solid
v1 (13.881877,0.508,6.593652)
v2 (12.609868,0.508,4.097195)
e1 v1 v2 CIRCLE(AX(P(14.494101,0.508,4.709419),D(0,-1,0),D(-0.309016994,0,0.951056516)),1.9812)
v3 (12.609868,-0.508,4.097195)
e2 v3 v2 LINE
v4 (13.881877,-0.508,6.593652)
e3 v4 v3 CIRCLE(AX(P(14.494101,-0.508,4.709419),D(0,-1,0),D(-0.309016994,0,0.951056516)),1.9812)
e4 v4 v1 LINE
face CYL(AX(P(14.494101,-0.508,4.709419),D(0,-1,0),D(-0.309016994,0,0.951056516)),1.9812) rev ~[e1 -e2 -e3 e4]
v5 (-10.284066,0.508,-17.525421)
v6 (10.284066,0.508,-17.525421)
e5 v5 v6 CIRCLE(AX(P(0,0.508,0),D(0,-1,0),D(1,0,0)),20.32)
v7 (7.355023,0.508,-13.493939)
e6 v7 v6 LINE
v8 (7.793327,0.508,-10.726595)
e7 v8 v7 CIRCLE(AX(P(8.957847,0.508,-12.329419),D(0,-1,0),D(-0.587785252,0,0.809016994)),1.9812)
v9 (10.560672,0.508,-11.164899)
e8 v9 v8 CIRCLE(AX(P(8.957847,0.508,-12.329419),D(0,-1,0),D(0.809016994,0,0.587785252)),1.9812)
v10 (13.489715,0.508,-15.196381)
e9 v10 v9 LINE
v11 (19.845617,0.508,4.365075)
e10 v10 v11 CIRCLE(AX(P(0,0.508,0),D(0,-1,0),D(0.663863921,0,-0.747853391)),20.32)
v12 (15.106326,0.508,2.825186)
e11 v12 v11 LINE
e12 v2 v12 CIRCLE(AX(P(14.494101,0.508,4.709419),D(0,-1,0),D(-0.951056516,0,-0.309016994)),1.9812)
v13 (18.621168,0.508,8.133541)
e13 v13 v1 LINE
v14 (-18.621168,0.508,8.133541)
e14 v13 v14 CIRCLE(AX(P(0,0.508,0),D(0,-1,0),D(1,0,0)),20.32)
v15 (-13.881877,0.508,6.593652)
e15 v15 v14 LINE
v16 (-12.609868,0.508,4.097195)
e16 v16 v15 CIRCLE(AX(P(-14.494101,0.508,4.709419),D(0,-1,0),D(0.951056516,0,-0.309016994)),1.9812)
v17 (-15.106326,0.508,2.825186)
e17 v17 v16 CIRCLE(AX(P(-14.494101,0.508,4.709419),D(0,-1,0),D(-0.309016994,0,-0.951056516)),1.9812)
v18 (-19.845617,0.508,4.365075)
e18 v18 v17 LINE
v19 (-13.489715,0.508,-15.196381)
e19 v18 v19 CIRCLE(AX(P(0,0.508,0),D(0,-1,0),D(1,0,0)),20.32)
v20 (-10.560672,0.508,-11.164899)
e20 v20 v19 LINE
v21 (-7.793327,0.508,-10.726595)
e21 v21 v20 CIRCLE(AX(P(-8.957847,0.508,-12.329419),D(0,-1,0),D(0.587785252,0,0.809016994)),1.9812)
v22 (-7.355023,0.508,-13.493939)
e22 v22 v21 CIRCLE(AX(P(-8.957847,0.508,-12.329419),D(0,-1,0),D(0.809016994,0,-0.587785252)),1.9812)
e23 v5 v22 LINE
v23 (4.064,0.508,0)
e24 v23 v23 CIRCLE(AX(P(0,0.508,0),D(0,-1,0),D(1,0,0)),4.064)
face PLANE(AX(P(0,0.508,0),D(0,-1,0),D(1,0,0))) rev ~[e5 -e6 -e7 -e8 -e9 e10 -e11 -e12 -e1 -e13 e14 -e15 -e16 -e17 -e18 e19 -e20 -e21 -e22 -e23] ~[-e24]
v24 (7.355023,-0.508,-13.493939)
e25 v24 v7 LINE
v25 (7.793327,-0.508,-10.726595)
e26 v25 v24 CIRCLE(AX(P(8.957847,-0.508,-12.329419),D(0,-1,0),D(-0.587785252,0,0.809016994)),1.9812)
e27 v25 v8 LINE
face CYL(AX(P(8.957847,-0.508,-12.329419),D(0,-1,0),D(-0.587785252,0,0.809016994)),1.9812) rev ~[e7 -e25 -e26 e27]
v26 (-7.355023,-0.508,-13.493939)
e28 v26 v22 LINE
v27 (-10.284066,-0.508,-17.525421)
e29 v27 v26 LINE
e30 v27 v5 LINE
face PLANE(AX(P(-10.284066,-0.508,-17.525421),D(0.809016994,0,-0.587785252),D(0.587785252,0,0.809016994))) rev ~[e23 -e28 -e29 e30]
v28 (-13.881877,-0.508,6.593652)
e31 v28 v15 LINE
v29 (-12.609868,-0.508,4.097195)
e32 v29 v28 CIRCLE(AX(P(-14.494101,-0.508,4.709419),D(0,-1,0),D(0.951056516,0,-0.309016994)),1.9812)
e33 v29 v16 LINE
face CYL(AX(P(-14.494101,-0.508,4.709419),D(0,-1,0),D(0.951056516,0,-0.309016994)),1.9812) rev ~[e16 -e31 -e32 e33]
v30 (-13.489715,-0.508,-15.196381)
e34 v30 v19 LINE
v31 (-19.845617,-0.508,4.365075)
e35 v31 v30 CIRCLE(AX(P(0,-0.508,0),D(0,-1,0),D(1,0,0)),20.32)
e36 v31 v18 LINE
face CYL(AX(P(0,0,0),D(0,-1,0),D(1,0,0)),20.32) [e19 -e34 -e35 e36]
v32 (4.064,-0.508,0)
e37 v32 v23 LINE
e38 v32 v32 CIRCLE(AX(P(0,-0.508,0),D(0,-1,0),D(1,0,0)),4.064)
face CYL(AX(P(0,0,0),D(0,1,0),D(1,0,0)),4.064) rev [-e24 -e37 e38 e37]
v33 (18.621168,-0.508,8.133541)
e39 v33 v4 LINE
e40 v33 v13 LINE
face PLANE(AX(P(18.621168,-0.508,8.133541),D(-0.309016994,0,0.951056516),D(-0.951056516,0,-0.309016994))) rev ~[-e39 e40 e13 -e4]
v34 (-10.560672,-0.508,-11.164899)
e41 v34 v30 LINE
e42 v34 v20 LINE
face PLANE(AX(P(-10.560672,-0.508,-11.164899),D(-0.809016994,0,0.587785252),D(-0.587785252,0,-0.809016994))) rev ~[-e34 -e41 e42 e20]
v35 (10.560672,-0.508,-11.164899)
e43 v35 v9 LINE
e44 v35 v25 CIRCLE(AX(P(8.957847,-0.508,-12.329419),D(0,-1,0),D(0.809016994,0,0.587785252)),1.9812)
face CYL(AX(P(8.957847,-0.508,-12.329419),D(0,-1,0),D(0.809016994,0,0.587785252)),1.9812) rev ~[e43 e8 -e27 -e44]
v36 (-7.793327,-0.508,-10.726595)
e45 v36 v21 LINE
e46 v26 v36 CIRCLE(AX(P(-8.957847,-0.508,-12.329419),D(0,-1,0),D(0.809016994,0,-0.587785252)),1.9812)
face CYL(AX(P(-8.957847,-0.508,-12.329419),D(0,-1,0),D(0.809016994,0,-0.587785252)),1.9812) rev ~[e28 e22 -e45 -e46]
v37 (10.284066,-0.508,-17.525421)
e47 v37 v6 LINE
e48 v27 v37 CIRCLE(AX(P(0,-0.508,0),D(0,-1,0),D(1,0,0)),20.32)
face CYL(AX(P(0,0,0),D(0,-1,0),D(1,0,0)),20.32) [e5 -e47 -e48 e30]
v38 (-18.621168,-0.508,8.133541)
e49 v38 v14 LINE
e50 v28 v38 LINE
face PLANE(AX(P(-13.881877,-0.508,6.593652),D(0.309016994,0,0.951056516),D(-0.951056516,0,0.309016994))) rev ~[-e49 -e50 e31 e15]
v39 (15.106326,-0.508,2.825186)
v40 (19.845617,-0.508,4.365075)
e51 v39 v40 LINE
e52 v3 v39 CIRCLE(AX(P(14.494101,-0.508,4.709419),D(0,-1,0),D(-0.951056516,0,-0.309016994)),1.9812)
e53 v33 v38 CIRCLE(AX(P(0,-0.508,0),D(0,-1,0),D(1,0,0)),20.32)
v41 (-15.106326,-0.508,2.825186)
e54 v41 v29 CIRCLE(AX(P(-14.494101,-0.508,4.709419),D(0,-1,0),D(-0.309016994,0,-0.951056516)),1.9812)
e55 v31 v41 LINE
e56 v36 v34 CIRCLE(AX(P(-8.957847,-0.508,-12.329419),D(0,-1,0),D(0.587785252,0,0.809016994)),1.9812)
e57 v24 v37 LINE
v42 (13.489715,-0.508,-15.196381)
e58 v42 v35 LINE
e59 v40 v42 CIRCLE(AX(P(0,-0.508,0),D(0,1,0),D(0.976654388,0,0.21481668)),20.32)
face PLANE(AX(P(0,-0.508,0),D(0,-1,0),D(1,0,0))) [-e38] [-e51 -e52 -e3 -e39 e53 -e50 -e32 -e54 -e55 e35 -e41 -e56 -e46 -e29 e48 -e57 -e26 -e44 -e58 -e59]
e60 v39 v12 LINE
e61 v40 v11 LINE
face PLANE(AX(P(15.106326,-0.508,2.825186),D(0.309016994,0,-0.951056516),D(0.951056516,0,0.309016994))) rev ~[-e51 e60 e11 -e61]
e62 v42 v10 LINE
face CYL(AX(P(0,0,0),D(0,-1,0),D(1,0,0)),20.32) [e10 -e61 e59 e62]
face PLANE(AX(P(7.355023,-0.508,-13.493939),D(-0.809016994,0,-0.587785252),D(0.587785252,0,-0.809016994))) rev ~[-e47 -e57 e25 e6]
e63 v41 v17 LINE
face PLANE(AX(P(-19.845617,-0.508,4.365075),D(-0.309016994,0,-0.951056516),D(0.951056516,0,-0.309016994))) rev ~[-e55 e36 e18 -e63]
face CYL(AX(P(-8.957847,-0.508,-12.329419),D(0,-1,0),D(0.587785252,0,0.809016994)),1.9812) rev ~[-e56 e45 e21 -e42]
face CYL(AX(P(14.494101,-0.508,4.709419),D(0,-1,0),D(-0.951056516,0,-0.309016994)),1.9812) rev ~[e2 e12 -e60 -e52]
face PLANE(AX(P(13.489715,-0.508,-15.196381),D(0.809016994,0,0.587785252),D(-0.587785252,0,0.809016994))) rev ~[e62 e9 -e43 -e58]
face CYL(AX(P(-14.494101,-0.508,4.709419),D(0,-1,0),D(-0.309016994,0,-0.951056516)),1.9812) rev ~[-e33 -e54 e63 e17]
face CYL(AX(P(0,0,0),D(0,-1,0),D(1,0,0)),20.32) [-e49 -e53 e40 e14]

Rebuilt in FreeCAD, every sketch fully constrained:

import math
import FreeCAD as App
import Part
import Sketcher
from FreeCAD import Vector
Q = App.Units.Quantity

doc = App.newDocument("Part")
params = doc.addObject("Spreadsheet::Sheet", "Params")
for row, (alias, value) in enumerate([
    ("sketch1_diameter", "1.6 in"),
    ("sketch1_diameter2", "0.32 in"),
    ("pad1_length", "0.04 in"),
    ("sketch2_radius", "0.8 in"),
    ("sketch2_radius2", "0.078 in"),
    ("pocket1_length", "1 in"),
], start=1):
    params.set(f"A{row}", alias)
    params.set(f"B{row}", "=" + value)
    params.setAlias(f"B{row}", alias)

body = doc.addObject("PartDesign::Body", "Body")

# Sketch on XZ plane
sketch1 = body.newObject("Sketcher::SketchObject", "Sketch")
sketch1.AttachmentSupport = (doc.getObject("XZ_Plane"), [""])
sketch1.MapMode = "FlatFace"
sketch1.addGeometry(Part.Circle(Vector(0, 0, 0), Vector(0, 0, 1), 20.32), False)
sketch1.addGeometry(Part.Circle(Vector(0, 0, 0), Vector(0, 0, 1), 4.064), False)
sketch1.addConstraint(Sketcher.Constraint("Coincident", 0, 3, -1, 1))
sketch1.addConstraint(Sketcher.Constraint("Coincident", 1, 3, -1, 1))
sketch1.addConstraint(Sketcher.Constraint("Diameter", 0, Q("1.6 in")))
sketch1.addConstraint(Sketcher.Constraint("Diameter", 1, Q("0.32 in")))
sketch1.setExpression("Constraints[2]", "Params.sketch1_diameter")
sketch1.setExpression("Constraints[3]", "Params.sketch1_diameter2")
pad1 = body.newObject("PartDesign::Pad", "Pad")
pad1.Profile = sketch1
pad1.setExpression("Length", "Params.pad1_length")
pad1.Midplane = True

# Sketch on XZ plane
sketch2 = body.newObject("Sketcher::SketchObject", "Sketch001")
sketch2.AttachmentSupport = (doc.getObject("XZ_Plane"), [""])
sketch2.MapMode = "FlatFace"
sketch2.AttachmentOffset = App.Placement(Vector(0, 0, 0.02 * 25.4), App.Rotation())
sketch2.addGeometry(Part.LineSegment(Vector(18.621168, 8.133541, 0), Vector(13.881877, 6.593652, 0)), False)
sketch2.addGeometry(Part.ArcOfCircle(Part.Circle(Vector(14.494101, 4.709419, 0), Vector(0, 0, 1), 1.9812), math.radians(108), math.radians(198)), False)
sketch2.addGeometry(Part.ArcOfCircle(Part.Circle(Vector(14.494101, 4.709419, 0), Vector(0, 0, 1), 1.9812), math.radians(-162), math.radians(-72)), False)
sketch2.addGeometry(Part.LineSegment(Vector(15.106326, 2.825186, 0), Vector(19.845617, 4.365075, 0)), False)
sketch2.addGeometry(Part.ArcOfCircle(Part.Circle(Vector(0, 0, 0), Vector(0, 0, 1), 20.32), math.radians(12.404773), math.radians(23.595227)), False)
sketch2.addGeometry(Part.ArcOfCircle(Part.Circle(Vector(0, 0, 0), Vector(0, 0, 1), 20.32), math.radians(-59.595227), math.radians(-48.404773)), False)
sketch2.addGeometry(Part.LineSegment(Vector(13.489715, -15.196381, 0), Vector(10.560672, -11.164899, 0)), False)
sketch2.addGeometry(Part.ArcOfCircle(Part.Circle(Vector(8.957847, -12.329419, 0), Vector(0, 0, 1), 1.9812), math.radians(36), math.radians(126)), False)
sketch2.addGeometry(Part.ArcOfCircle(Part.Circle(Vector(8.957847, -12.329419, 0), Vector(0, 0, 1), 1.9812), math.radians(126), math.radians(216)), False)
sketch2.addGeometry(Part.LineSegment(Vector(7.355023, -13.493939, 0), Vector(10.284066, -17.525421, 0)), False)
sketch2.addGeometry(Part.LineSegment(Vector(-10.560672, -11.164899, 0), Vector(-13.489715, -15.196381, 0)), False)
sketch2.addGeometry(Part.ArcOfCircle(Part.Circle(Vector(0, 0, 0), Vector(0, 0, 1), 20.32), math.radians(-131.595227), math.radians(-120.404773)), False)
sketch2.addGeometry(Part.LineSegment(Vector(-10.284066, -17.525421, 0), Vector(-7.355023, -13.493939, 0)), False)
sketch2.addGeometry(Part.ArcOfCircle(Part.Circle(Vector(-8.957847, -12.329419, 0), Vector(0, 0, 1), 1.9812), math.radians(-36), math.radians(54)), False)
sketch2.addGeometry(Part.ArcOfCircle(Part.Circle(Vector(-8.957847, -12.329419, 0), Vector(0, 0, 1), 1.9812), math.radians(54), math.radians(144)), False)
sketch2.addGeometry(Part.LineSegment(Vector(-13.881877, 6.593652, 0), Vector(-18.621168, 8.133541, 0)), False)
sketch2.addGeometry(Part.ArcOfCircle(Part.Circle(Vector(0, 0, 0), Vector(0, 0, 1), 20.32), math.radians(156.404773), math.radians(167.595227)), False)
sketch2.addGeometry(Part.LineSegment(Vector(-19.845617, 4.365075, 0), Vector(-15.106326, 2.825186, 0)), False)
sketch2.addGeometry(Part.ArcOfCircle(Part.Circle(Vector(-14.494101, 4.709419, 0), Vector(0, 0, 1), 1.9812), math.radians(-108), math.radians(-18)), False)
sketch2.addGeometry(Part.ArcOfCircle(Part.Circle(Vector(-14.494101, 4.709419, 0), Vector(0, 0, 1), 1.9812), math.radians(-18), math.radians(72)), False)
sketch2.addConstraint(Sketcher.Constraint("Tangent", 0, 2, 1, 1))
sketch2.addConstraint(Sketcher.Constraint("Tangent", 1, 2, 2, 1))
sketch2.addConstraint(Sketcher.Constraint("Tangent", 2, 2, 3, 1))
sketch2.addConstraint(Sketcher.Constraint("Coincident", 3, 2, 4, 1))
sketch2.addConstraint(Sketcher.Constraint("Coincident", 4, 2, 0, 1))
sketch2.addConstraint(Sketcher.Constraint("Coincident", 5, 2, 6, 1))
sketch2.addConstraint(Sketcher.Constraint("Tangent", 6, 2, 7, 1))
sketch2.addConstraint(Sketcher.Constraint("Tangent", 7, 2, 8, 1))
sketch2.addConstraint(Sketcher.Constraint("Tangent", 8, 2, 9, 1))
sketch2.addConstraint(Sketcher.Constraint("Coincident", 9, 2, 5, 1))
sketch2.addConstraint(Sketcher.Constraint("Coincident", 10, 2, 11, 1))
sketch2.addConstraint(Sketcher.Constraint("Coincident", 11, 2, 12, 1))
sketch2.addConstraint(Sketcher.Constraint("Tangent", 12, 2, 13, 1))
sketch2.addConstraint(Sketcher.Constraint("Tangent", 13, 2, 14, 1))
sketch2.addConstraint(Sketcher.Constraint("Tangent", 14, 2, 10, 1))
sketch2.addConstraint(Sketcher.Constraint("Coincident", 15, 2, 16, 1))
sketch2.addConstraint(Sketcher.Constraint("Coincident", 16, 2, 17, 1))
sketch2.addConstraint(Sketcher.Constraint("Tangent", 17, 2, 18, 1))
sketch2.addConstraint(Sketcher.Constraint("Tangent", 18, 2, 19, 1))
sketch2.addConstraint(Sketcher.Constraint("Tangent", 19, 2, 15, 1))
sketch2.addConstraint(Sketcher.Constraint("Coincident", 4, 3, -1, 1))
sketch2.addConstraint(Sketcher.Constraint("Coincident", 5, 3, -1, 1))
sketch2.addConstraint(Sketcher.Constraint("Coincident", 11, 3, -1, 1))
sketch2.addConstraint(Sketcher.Constraint("Coincident", 16, 3, -1, 1))
sketch2.addConstraint(Sketcher.Constraint("Equal", 1, 2))
sketch2.addConstraint(Sketcher.Constraint("Equal", 4, 5))
sketch2.addConstraint(Sketcher.Constraint("Equal", 2, 7))
sketch2.addConstraint(Sketcher.Constraint("Equal", 7, 8))
sketch2.addConstraint(Sketcher.Constraint("Equal", 5, 11))
sketch2.addConstraint(Sketcher.Constraint("Equal", 8, 13))
sketch2.addConstraint(Sketcher.Constraint("Equal", 13, 14))
sketch2.addConstraint(Sketcher.Constraint("Equal", 11, 16))
sketch2.addConstraint(Sketcher.Constraint("Equal", 14, 18))
sketch2.addConstraint(Sketcher.Constraint("Equal", 18, 19))
sketch2.addConstraint(Sketcher.Constraint("Symmetric", 7, 3, 13, 3, -2))
sketch2.addConstraint(Sketcher.Constraint("Symmetric", 1, 3, 18, 3, -2))
sketch2.addConstraint(Sketcher.Constraint("Parallel", 0, 3))
sketch2.addConstraint(Sketcher.Constraint("Parallel", 6, 9))
sketch2.addConstraint(Sketcher.Constraint("Parallel", 10, 12))
sketch2.addConstraint(Sketcher.Constraint("Parallel", 15, 17))
sketch2.addConstraint(Sketcher.Constraint("Horizontal", 5, 2, 10, 2))
sketch2.addConstraint(Sketcher.Constraint("Horizontal", 7, 2, 13, 2))
sketch2.addConstraint(Sketcher.Constraint("Horizontal", 4, 2, 15, 2))
sketch2.addConstraint(Sketcher.Constraint("Horizontal", 1, 2, 18, 2))
sketch2.addConstraint(Sketcher.Constraint("Equal", 0, 3))
sketch2.addConstraint(Sketcher.Constraint("Equal", 3, 6))
sketch2.addConstraint(Sketcher.Constraint("Equal", 6, 9))
sketch2.addConstraint(Sketcher.Constraint("Radius", 4, Q("0.8 in")))
sketch2.addConstraint(Sketcher.Constraint("Angle", 0, Q("-162 deg")))
sketch2.addConstraint(Sketcher.Constraint("Angle", 6, Q("126 deg")))
sketch2.addConstraint(Sketcher.Constraint("Radius", 1, Q("0.078 in")))
sketch2.addConstraint(Sketcher.Constraint("DistanceX", -1, 1, 1, 3, 14.494101))
sketch2.addConstraint(Sketcher.Constraint("DistanceX", 15, 2, 18, 2, 6.0113))
sketch2.addConstraint(Sketcher.Constraint("DistanceX", 7, 2, 7, 3, 1.16452))
sketch2.setExpression("Constraints[47]", "Params.sketch2_radius")
sketch2.setExpression("Constraints[50]", "Params.sketch2_radius2")
pocket1 = body.newObject("PartDesign::Pocket", "Pocket")
pocket1.Profile = sketch2
pocket1.setExpression("Length", "Params.pocket1_length")

doc.recompute()
